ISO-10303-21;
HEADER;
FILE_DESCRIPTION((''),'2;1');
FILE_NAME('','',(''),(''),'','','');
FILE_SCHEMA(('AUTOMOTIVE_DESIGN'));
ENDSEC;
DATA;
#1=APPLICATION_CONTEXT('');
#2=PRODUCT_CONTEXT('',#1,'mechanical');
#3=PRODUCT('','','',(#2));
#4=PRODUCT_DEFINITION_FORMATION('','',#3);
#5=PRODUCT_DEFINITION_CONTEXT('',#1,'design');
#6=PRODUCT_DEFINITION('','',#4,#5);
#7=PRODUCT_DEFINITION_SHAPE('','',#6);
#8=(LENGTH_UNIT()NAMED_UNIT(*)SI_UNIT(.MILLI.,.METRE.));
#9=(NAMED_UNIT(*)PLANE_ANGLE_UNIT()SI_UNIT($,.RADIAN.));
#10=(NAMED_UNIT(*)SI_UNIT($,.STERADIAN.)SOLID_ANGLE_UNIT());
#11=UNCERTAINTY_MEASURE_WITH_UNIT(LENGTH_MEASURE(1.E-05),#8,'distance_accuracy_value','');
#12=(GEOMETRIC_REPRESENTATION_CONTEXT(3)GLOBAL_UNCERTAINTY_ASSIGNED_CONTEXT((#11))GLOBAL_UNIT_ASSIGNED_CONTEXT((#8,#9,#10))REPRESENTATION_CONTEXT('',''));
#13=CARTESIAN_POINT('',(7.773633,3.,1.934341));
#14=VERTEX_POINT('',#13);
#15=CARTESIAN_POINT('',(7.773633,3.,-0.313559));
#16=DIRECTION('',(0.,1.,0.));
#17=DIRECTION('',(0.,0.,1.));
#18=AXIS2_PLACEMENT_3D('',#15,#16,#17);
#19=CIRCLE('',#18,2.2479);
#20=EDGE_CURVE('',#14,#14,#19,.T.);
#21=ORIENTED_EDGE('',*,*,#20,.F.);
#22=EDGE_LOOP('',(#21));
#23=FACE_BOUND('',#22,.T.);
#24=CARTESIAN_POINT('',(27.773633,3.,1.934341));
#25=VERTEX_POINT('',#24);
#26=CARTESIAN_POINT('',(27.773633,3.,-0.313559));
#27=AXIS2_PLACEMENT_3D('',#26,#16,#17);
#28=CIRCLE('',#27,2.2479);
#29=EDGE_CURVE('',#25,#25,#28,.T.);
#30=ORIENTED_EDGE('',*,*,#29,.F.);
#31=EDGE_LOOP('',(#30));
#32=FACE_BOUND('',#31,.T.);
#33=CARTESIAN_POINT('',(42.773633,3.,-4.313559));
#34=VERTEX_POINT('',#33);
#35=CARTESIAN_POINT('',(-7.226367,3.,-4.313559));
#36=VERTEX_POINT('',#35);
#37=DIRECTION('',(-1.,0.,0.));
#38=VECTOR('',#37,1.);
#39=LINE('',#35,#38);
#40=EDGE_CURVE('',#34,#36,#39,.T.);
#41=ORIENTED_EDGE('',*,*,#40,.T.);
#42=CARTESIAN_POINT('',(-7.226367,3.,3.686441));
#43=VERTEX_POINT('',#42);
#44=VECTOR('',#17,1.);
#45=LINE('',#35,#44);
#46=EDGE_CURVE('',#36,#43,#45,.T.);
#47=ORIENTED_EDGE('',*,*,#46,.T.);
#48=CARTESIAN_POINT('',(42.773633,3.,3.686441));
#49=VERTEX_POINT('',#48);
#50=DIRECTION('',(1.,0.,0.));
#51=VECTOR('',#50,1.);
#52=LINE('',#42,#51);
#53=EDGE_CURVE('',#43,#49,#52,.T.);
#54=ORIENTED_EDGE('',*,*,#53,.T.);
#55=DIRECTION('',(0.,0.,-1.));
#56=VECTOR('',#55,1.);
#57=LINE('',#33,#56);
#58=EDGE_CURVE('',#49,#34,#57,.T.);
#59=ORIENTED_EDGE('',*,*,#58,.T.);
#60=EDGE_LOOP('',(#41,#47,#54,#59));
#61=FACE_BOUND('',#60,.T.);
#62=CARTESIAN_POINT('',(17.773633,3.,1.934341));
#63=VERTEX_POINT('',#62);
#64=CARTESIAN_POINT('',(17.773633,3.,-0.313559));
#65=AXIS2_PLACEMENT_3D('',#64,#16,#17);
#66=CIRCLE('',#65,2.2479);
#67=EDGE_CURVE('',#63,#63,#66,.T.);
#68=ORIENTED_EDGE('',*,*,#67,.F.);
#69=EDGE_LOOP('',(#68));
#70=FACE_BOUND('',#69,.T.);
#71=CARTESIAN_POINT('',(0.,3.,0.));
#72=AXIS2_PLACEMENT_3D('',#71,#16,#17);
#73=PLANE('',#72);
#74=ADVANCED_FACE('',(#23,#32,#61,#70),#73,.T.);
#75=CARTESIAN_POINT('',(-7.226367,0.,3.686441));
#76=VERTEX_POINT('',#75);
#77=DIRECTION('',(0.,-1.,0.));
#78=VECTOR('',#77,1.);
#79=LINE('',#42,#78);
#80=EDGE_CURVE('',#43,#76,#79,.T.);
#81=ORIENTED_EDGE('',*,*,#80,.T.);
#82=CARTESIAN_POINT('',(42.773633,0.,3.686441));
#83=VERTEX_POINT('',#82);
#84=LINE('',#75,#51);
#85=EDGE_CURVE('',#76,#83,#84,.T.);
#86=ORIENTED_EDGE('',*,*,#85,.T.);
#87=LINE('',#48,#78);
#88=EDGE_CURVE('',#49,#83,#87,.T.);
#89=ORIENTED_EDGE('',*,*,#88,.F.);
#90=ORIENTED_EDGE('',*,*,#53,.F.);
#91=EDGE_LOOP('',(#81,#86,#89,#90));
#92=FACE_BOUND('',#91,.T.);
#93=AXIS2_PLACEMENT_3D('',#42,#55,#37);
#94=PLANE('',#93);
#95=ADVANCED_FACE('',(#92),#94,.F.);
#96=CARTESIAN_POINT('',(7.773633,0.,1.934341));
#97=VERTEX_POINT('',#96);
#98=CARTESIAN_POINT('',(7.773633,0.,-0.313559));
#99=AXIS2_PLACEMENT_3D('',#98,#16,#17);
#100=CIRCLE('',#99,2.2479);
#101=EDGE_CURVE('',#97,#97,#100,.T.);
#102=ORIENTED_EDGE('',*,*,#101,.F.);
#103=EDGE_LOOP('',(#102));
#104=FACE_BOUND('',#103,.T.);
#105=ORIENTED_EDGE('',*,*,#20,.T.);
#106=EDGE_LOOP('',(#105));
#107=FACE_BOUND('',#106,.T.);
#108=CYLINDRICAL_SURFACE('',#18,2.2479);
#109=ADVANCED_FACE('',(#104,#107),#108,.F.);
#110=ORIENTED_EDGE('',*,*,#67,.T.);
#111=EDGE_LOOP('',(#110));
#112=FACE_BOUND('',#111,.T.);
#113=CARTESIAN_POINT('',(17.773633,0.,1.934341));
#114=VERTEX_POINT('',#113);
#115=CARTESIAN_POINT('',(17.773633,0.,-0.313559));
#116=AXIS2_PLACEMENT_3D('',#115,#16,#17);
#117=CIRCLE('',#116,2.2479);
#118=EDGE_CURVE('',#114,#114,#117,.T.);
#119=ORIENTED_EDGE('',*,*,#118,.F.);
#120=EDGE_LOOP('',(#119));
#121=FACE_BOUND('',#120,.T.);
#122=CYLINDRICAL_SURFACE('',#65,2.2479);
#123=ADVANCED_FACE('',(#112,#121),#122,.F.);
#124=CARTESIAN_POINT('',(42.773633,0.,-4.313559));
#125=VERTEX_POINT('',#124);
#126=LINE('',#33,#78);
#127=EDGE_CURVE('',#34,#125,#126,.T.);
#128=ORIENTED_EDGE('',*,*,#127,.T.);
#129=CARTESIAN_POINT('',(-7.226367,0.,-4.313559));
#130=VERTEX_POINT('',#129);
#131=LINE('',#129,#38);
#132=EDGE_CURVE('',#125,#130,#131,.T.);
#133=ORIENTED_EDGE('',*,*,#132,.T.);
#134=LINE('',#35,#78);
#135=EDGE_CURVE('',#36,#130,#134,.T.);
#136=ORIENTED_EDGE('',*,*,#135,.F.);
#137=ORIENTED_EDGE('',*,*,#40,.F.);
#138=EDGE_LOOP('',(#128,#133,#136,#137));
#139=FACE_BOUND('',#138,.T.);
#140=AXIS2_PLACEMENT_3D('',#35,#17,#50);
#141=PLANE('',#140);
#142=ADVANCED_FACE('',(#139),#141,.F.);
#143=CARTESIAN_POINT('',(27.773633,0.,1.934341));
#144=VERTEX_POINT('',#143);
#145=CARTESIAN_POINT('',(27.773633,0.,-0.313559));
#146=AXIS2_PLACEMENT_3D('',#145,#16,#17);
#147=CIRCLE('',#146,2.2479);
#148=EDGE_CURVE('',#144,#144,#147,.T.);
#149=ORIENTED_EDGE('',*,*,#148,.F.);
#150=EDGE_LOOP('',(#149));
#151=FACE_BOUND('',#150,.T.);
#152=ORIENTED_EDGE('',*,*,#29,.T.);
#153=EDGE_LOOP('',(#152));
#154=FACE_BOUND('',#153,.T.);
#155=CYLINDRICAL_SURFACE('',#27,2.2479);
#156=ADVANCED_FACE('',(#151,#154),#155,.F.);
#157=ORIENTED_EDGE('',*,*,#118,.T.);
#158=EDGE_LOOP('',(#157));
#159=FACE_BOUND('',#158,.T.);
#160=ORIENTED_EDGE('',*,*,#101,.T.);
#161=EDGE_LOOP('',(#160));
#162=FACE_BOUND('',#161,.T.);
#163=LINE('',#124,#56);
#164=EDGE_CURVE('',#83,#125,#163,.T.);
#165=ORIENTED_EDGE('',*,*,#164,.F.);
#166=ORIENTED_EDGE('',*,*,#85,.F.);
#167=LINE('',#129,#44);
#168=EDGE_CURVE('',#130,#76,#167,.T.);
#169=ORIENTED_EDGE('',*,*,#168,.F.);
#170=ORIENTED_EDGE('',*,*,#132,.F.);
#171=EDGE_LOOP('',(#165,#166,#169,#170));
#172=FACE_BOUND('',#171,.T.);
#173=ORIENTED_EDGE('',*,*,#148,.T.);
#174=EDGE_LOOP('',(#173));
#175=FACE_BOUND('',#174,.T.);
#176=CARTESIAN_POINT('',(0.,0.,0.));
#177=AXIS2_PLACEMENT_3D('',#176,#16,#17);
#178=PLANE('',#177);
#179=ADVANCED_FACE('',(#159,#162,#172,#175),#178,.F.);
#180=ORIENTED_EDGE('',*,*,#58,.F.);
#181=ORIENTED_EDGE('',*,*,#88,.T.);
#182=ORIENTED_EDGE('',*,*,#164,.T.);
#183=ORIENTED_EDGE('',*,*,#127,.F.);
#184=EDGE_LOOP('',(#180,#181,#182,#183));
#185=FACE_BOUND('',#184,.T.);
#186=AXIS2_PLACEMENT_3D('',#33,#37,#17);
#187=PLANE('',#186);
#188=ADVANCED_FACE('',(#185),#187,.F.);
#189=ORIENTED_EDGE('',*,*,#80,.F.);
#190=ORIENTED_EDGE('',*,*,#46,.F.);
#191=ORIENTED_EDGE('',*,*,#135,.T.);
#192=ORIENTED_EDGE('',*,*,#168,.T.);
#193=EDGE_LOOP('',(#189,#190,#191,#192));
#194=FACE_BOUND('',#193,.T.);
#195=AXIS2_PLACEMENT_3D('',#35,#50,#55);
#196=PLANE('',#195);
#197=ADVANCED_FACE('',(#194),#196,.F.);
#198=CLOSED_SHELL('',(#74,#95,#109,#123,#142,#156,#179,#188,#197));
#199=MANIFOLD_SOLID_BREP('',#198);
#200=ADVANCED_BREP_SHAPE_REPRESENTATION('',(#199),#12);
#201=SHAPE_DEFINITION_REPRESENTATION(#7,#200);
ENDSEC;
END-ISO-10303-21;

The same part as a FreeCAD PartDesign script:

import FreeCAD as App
import Part
import Sketcher
from FreeCAD import Vector

doc = App.newDocument("Part")
body = doc.addObject("PartDesign::Body", "Body")

# Sketch on XZ plane
sketch1 = body.newObject("Sketcher::SketchObject", "Sketch")
sketch1.AttachmentSupport = (doc.getObject("XZ_Plane"), [""])
sketch1.MapMode = "FlatFace"
sketch1.addGeometry(Part.LineSegment(Vector(-7, -4, 0), Vector(-7, 4, 0)), False)
sketch1.addGeometry(Part.LineSegment(Vector(-7, 4, 0), Vector(43, 4, 0)), False)
sketch1.addGeometry(Part.LineSegment(Vector(43, 4, 0), Vector(43, -4, 0)), False)
sketch1.addGeometry(Part.LineSegment(Vector(43, -4, 0), Vector(-7, -4, 0)), False)
sketch1.addConstraint(Sketcher.Constraint("Coincident", 0, 2, 1, 1))
sketch1.addConstraint(Sketcher.Constraint("Coincident", 1, 2, 2, 1))
sketch1.addConstraint(Sketcher.Constraint("Coincident", 2, 2, 3, 1))
sketch1.addConstraint(Sketcher.Constraint("Coincident", 3, 2, 0, 1))
sketch1.addConstraint(Sketcher.Constraint("Vertical", 0))
sketch1.addConstraint(Sketcher.Constraint("Horizontal", 1))
sketch1.addConstraint(Sketcher.Constraint("Vertical", 2))
sketch1.addConstraint(Sketcher.Constraint("Horizontal", 3))
sketch1.addConstraint(Sketcher.Constraint("DistanceX", 1, 1, 1, 2, 50.0))
sketch1.addConstraint(Sketcher.Constraint("DistanceY", 0, 1, 0, 2, 8.0))
sketch1.addConstraint(Sketcher.Constraint("DistanceY", -1, 1, 0, 2, 3.686441))
sketch1.addConstraint(Sketcher.Constraint("DistanceX", 0, 2, -1, 1, 7.226367))
pad1 = body.newObject("PartDesign::Pad", "Pad")
pad1.Profile = sketch1
pad1.Length = 3
pad1.Reversed = True

# Sketch on XZ plane
sketch2 = body.newObject("Sketcher::SketchObject", "Sketch001")
sketch2.AttachmentSupport = (doc.getObject("XZ_Plane"), [""])
sketch2.MapMode = "FlatFace"
sketch2.AttachmentOffset = App.Placement(Vector(0, 0, -3), App.Rotation())
sketch2.addGeometry(Part.Circle(Vector(7.8, -0.3, 0), Vector(0, 0, 1), 2.2), False)
sketch2.addGeometry(Part.Circle(Vector(27.8, -0.3, 0), Vector(0, 0, 1), 2.2), False)
sketch2.addGeometry(Part.Circle(Vector(17.8, -0.3, 0), Vector(0, 0, 1), 2.2), False)
sketch2.addConstraint(Sketcher.Constraint("Equal", 0, 1))
sketch2.addConstraint(Sketcher.Constraint("Equal", 1, 2))
sketch2.addConstraint(Sketcher.Constraint("Horizontal", 0, 3, 1, 3))
sketch2.addConstraint(Sketcher.Constraint("Horizontal", 1, 3, 2, 3))
sketch2.addConstraint(Sketcher.Constraint("DistanceX", 0, 3, 1, 3, 20.0))
sketch2.addConstraint(Sketcher.Constraint("DistanceX", 0, 3, 2, 3, 10.0))
sketch2.addConstraint(Sketcher.Constraint("Diameter", 0, 4.4958))
sketch2.addConstraint(Sketcher.Constraint("DistanceY", 0, 3, -1, 1, 0.313559))
sketch2.addConstraint(Sketcher.Constraint("DistanceX", -1, 1, 0, 3, 7.773633))
doc.recompute()
hole = body.newObject("PartDesign::Hole", "Hole")
hole.Profile = sketch2
hole.ThreadType = "None"
hole.Diameter = 4.4958
hole.DepthType = "Dimension"
hole.Depth = 17
hole.DrillPoint = "Angled"
hole.DrillPointAngle = 118
hole.Reversed = True

doc.recompute()
